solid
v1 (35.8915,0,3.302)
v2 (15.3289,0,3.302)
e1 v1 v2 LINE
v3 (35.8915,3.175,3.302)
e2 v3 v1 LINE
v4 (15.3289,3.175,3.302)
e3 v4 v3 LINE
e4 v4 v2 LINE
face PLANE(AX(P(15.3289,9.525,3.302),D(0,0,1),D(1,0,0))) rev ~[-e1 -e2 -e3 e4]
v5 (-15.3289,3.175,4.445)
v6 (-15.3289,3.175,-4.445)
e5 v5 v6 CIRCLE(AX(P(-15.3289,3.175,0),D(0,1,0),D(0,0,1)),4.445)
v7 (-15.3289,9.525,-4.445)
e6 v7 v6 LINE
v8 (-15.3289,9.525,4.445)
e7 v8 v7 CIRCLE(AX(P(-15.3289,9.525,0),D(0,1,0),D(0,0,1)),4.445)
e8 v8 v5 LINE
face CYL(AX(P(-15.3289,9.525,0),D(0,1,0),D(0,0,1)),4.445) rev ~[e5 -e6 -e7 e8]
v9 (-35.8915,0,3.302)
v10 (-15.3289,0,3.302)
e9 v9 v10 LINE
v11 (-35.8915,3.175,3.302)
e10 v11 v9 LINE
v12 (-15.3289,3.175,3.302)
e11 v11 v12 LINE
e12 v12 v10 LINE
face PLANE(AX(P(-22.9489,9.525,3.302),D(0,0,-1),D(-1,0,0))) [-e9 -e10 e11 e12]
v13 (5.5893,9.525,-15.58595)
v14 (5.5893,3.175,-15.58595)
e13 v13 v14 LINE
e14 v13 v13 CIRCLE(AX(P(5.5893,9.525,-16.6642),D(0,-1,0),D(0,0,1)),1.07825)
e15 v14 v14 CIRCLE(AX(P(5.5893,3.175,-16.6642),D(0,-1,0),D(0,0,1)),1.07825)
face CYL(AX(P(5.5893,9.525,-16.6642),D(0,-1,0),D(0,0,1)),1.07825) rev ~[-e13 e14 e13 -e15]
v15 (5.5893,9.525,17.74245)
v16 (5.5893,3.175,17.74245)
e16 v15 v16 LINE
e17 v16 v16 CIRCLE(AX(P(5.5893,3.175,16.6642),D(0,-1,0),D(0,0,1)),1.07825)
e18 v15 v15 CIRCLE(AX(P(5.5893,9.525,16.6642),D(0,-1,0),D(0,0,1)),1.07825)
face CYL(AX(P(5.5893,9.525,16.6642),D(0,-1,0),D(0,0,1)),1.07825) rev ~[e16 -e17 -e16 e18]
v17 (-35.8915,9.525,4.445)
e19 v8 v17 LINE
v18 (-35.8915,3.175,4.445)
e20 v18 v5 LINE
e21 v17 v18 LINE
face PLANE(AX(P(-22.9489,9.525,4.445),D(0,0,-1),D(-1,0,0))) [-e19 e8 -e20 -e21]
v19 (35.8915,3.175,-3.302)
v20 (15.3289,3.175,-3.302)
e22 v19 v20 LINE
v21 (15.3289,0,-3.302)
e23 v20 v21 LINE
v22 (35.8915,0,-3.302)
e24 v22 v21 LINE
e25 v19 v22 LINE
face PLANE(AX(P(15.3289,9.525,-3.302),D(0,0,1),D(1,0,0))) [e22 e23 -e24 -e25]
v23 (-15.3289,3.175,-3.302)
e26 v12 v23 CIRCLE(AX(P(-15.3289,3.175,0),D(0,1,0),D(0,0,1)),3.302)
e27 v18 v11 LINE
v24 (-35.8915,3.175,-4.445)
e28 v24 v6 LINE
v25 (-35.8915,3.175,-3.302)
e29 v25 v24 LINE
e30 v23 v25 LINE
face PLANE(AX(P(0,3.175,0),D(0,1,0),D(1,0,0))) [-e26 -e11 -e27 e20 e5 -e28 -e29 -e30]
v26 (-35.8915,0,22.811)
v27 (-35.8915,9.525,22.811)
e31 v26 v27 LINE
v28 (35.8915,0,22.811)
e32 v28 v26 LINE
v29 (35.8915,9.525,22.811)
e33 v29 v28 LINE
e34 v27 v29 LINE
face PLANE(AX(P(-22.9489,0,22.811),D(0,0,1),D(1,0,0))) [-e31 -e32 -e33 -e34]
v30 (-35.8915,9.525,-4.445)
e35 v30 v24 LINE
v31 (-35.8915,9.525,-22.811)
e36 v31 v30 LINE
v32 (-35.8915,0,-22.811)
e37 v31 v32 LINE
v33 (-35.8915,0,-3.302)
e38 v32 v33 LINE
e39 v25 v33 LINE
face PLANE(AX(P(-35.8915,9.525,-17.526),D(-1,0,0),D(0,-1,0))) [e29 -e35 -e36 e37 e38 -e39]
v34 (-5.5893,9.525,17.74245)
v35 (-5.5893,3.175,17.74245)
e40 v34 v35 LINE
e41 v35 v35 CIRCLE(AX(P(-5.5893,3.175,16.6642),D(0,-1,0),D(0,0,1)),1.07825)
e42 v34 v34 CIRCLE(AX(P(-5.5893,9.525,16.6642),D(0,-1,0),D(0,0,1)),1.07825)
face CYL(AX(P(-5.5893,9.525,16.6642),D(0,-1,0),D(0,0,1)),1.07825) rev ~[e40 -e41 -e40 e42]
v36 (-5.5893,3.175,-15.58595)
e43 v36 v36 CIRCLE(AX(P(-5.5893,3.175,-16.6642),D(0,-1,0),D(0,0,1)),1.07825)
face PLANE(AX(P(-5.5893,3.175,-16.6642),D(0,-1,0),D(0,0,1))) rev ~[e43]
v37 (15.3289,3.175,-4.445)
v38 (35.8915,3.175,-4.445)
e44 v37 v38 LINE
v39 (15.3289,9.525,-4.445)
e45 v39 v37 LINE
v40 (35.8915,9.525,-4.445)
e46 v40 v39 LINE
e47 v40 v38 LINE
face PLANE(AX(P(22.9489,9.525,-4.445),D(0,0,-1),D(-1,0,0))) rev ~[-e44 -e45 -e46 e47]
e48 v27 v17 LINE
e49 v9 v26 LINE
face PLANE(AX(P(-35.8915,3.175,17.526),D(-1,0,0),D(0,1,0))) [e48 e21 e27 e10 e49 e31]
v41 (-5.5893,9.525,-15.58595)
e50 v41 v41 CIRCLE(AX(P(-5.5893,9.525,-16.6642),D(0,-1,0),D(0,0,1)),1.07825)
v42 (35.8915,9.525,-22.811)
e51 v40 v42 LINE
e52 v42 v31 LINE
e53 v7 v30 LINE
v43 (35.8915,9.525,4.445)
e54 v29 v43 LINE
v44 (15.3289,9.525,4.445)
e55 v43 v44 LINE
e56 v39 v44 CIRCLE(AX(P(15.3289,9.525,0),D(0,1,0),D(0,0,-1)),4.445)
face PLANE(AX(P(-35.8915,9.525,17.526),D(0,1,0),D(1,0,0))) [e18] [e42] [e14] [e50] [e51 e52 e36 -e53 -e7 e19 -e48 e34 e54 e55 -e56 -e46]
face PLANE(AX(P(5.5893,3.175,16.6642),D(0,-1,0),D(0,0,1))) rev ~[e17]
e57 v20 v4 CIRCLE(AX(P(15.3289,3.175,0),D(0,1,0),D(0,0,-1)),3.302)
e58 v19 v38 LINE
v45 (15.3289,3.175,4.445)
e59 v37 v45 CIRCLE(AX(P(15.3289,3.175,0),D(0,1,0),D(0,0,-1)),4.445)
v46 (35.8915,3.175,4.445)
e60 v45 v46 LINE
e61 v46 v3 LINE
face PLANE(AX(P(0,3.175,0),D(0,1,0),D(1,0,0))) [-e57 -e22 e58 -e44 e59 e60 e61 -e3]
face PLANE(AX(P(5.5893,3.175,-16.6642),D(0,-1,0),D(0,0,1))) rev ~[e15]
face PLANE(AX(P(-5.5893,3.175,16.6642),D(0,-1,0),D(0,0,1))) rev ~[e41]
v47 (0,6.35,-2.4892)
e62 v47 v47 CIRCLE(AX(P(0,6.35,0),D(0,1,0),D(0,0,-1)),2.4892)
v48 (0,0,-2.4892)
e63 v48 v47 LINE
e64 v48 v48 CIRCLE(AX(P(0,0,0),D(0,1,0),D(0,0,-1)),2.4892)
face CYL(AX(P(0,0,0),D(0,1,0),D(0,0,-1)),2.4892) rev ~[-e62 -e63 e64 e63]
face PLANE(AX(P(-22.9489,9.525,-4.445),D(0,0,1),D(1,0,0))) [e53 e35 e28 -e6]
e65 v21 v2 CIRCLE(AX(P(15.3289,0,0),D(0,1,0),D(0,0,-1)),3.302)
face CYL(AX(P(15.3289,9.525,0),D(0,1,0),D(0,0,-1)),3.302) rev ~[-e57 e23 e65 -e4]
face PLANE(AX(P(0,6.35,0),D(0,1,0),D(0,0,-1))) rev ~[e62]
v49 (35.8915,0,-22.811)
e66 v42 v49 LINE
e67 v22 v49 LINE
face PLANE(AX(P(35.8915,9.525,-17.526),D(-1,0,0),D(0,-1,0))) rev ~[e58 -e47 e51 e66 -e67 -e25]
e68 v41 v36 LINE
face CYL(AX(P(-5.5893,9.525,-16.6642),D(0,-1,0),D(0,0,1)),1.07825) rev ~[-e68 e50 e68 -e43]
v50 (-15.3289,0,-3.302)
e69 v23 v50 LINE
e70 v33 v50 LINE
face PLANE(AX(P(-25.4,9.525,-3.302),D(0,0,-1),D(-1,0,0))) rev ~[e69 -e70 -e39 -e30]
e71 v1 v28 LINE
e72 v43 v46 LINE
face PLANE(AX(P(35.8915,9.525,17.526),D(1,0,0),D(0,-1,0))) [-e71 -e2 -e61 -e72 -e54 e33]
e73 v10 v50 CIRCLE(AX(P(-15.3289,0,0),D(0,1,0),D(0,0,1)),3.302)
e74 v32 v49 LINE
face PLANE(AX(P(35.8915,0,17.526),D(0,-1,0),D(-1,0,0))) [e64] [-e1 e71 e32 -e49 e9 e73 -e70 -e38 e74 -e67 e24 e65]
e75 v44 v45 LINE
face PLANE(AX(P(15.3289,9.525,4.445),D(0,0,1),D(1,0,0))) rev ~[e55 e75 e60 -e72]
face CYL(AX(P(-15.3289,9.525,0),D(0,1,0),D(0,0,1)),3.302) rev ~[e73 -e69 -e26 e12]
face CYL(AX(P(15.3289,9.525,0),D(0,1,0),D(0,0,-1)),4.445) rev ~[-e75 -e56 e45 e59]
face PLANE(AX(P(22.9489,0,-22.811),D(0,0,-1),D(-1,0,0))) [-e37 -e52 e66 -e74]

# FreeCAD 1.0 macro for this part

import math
import FreeCAD as App
import Part
import Sketcher
Q = App.Units.Quantity

doc = App.newDocument("Part")
body = doc.addObject("PartDesign::Body", "Body")

sketch1 = body.newObject("Sketcher::SketchObject", "Sketch")
sketch1.AttachmentSupport = (doc.getObject("XZ_Plane"), [""])
sketch1.MapMode = "FlatFace"
sketch1.addGeometry([
    Part.LineSegment(App.Vector(-22.9489, -20.701, 0), App.Vector(-22.9489, 20.701, 0)),
    Part.LineSegment(App.Vector(-22.9489, 20.701, 0), App.Vector(22.9489, 20.701, 0)),
    Part.LineSegment(App.Vector(22.9489, 20.701, 0), App.Vector(22.9489, -20.701, 0)),
    Part.LineSegment(App.Vector(22.9489, -20.701, 0), App.Vector(-22.9489, -20.701, 0)),
], False)
sketch1.addConstraint([
    Sketcher.Constraint("Coincident", 0, 2, 1, 1),
    Sketcher.Constraint("Coincident", 1, 2, 2, 1),
    Sketcher.Constraint("Coincident", 2, 2, 3, 1),
    Sketcher.Constraint("Coincident", 3, 2, 0, 1),
    Sketcher.Constraint("Vertical", 0),
    Sketcher.Constraint("Horizontal", 1),
    Sketcher.Constraint("Vertical", 2),
    Sketcher.Constraint("Horizontal", 3),
    Sketcher.Constraint("Symmetric", 0, 2, 2, 2, -1, 1),
    Sketcher.Constraint("DistanceY", 0, 1, 0, 2, Q("1.63 in")),
    Sketcher.Constraint("DistanceX", 1, 1, 1, 2, Q("1.807 in")),
])
pad1 = body.newObject("PartDesign::Pad", "Pad")
pad1.Profile = sketch1
pad1.Length = Q("0.375 in")
pad1.Reversed = True

sketch2 = body.newObject("Sketcher::SketchObject", "Sketch001")
sketch2.AttachmentSupport = (doc.getObject("XZ_Plane"), [""])
sketch2.MapMode = "FlatFace"
sketch2.addGeometry(Part.Circle(App.Vector(0, 0, 0), App.Vector(0, 0, 1), 2.4892), False)
sketch2.addConstraint([
    Sketcher.Constraint("Coincident", 0, 3, -1, 1),
    Sketcher.Constraint("Diameter", 0, Q("0.196 in")),
])
doc.recompute()
hole = body.newObject("PartDesign::Hole", "Hole")
hole.Profile = sketch2
hole.ThreadType = "None"
hole.Diameter = Q("0.196 in")
hole.DepthType = "Dimension"
hole.Depth = Q("0.25 in")
hole.DrillPoint = "Flat"

sketch3 = body.newObject("Sketcher::SketchObject", "Sketch002")
sketch3.AttachmentSupport = (doc.getObject("XY_Plane"), [""])
sketch3.MapMode = "FlatFace"
sketch3.AttachmentOffset = App.Placement(App.Vector(0, 0, 0.815 * 25.4), App.Rotation())
sketch3.addGeometry([
    Part.LineSegment(App.Vector(22.9489, 0, 0), App.Vector(22.9489, 9.525, 0)),
    Part.LineSegment(App.Vector(22.9489, 9.525, 0), App.Vector(-22.9489, 9.525, 0)),
    Part.LineSegment(App.Vector(-22.9489, 9.525, 0), App.Vector(-22.9489, 0, 0)),
    Part.LineSegment(App.Vector(-22.9489, 0, 0), App.Vector(22.9489, 0, 0)),
], False)
sketch3.addConstraint([
    Sketcher.Constraint("Coincident", 0, 2, 1, 1),
    Sketcher.Constraint("Coincident", 1, 2, 2, 1),
    Sketcher.Constraint("Coincident", 2, 2, 3, 1),
    Sketcher.Constraint("Coincident", 3, 2, 0, 1),
    Sketcher.Constraint("Vertical", 0),
    Sketcher.Constraint("Horizontal", 1),
    Sketcher.Constraint("Vertical", 2),
    Sketcher.Constraint("Horizontal", 3),
    Sketcher.Constraint("Symmetric", 2, 2, 3, 2, -1, 1),
    Sketcher.Constraint("DistanceX", 1, 2, 1, 1, Q("1.807 in")),
    Sketcher.Constraint("DistanceY", 0, 1, 0, 2, Q("0.375 in")),
])
pocket1 = body.newObject("PartDesign::Pocket", "Pocket")
pocket1.Profile = sketch3
pocket1.Length = Q("0.125 in")

sketch4 = body.newObject("Sketcher::SketchObject", "Sketch003")
sketch4.AttachmentSupport = (doc.getObject("XY_Plane"), [""])
sketch4.MapMode = "FlatFace"
sketch4.AttachmentOffset = App.Placement(App.Vector(0, 0, -0.815 * 25.4), App.Rotation())
sketch4.addGeometry([
    Part.LineSegment(App.Vector(-22.9489, 9.525, 0), App.Vector(22.9489, 9.525, 0)),
    Part.LineSegment(App.Vector(22.9489, 9.525, 0), App.Vector(22.9489, 0, 0)),
    Part.LineSegment(App.Vector(22.9489, 0, 0), App.Vector(-22.9489, 0, 0)),
    Part.LineSegment(App.Vector(-22.9489, 0, 0), App.Vector(-22.9489, 9.525, 0)),
], False)
sketch4.addConstraint([
    Sketcher.Constraint("Coincident", 0, 2, 1, 1),
    Sketcher.Constraint("Coincident", 1, 2, 2, 1),
    Sketcher.Constraint("Coincident", 2, 2, 3, 1),
    Sketcher.Constraint("Coincident", 3, 2, 0, 1),
    Sketcher.Constraint("Horizontal", 0),
    Sketcher.Constraint("Vertical", 1),
    Sketcher.Constraint("Horizontal", 2),
    Sketcher.Constraint("Vertical", 3),
    Sketcher.Constraint("Symmetric", 1, 2, 2, 2, -1, 1),
    Sketcher.Constraint("DistanceX", 0, 1, 0, 2, Q("1.807 in")),
    Sketcher.Constraint("DistanceY", 1, 2, 1, 1, Q("0.375 in")),
])
pocket2 = body.newObject("PartDesign::Pocket", "Pocket001")
pocket2.Profile = sketch4
pocket2.Length = Q("0.125 in")
pocket2.Reversed = True

sketch5 = body.newObject("Sketcher::SketchObject", "Sketch004")
sketch5.AttachmentSupport = (doc.getObject("YZ_Plane"), [""])
sketch5.MapMode = "FlatFace"
sketch5.AttachmentOffset = App.Placement(App.Vector(0, 0, 0.9035 * 25.4), App.Rotation())
sketch5.addGeometry([
    Part.LineSegment(App.Vector(9.525, -17.526, 0), App.Vector(9.525, 17.526, 0)),
    Part.LineSegment(App.Vector(9.525, 17.526, 0), App.Vector(0, 17.526, 0)),
    Part.LineSegment(App.Vector(0, 17.526, 0), App.Vector(0, -17.526, 0)),
    Part.LineSegment(App.Vector(0, -17.526, 0), App.Vector(9.525, -17.526, 0)),
], False)
sketch5.addConstraint([
    Sketcher.Constraint("Coincident", 0, 2, 1, 1),
    Sketcher.Constraint("Coincident", 1, 2, 2, 1),
    Sketcher.Constraint("Coincident", 2, 2, 3, 1),
    Sketcher.Constraint("Coincident", 3, 2, 0, 1),
    Sketcher.Constraint("Vertical", 0),
    Sketcher.Constraint("Horizontal", 1),
    Sketcher.Constraint("Vertical", 2),
    Sketcher.Constraint("Horizontal", 3),
    Sketcher.Constraint("Symmetric", 1, 2, 2, 2, -1, 1),
    Sketcher.Constraint("DistanceY", 0, 1, 0, 2, Q("1.38 in")),
    Sketcher.Constraint("DistanceX", 1, 2, 1, 1, Q("0.375 in")),
])
pad2 = body.newObject("PartDesign::Pad", "Pad001")
pad2.Profile = sketch5
pad2.Length = 12.9426

sketch6 = body.newObject("Sketcher::SketchObject", "Sketch005")
sketch6.AttachmentSupport = (doc.getObject("YZ_Plane"), [""])
sketch6.MapMode = "FlatFace"
sketch6.AttachmentOffset = App.Placement(App.Vector(0, 0, -0.9035 * 25.4), App.Rotation())
sketch6.addGeometry([
    Part.LineSegment(App.Vector(9.525, 17.526, 0), App.Vector(9.525, -17.526, 0)),
    Part.LineSegment(App.Vector(9.525, -17.526, 0), App.Vector(0, -17.526, 0)),
    Part.LineSegment(App.Vector(0, -17.526, 0), App.Vector(0, 17.526, 0)),
    Part.LineSegment(App.Vector(0, 17.526, 0), App.Vector(9.525, 17.526, 0)),
], False)
sketch6.addConstraint([
    Sketcher.Constraint("Coincident", 0, 2, 1, 1),
    Sketcher.Constraint("Coincident", 1, 2, 2, 1),
    Sketcher.Constraint("Coincident", 2, 2, 3, 1),
    Sketcher.Constraint("Coincident", 3, 2, 0, 1),
    Sketcher.Constraint("Vertical", 0),
    Sketcher.Constraint("Horizontal", 1),
    Sketcher.Constraint("Vertical", 2),
    Sketcher.Constraint("Horizontal", 3),
    Sketcher.Constraint("Symmetric", 1, 2, 2, 2, -1, 1),
    Sketcher.Constraint("DistanceY", 0, 2, 0, 1, Q("1.38 in")),
    Sketcher.Constraint("DistanceX", 1, 2, 1, 1, Q("0.375 in")),
])
pad3 = body.newObject("PartDesign::Pad", "Pad002")
pad3.Profile = sketch6
pad3.Length = 12.9426
pad3.Reversed = True

sketch7 = body.newObject("Sketcher::SketchObject", "Sketch006")
sketch7.AttachmentSupport = (doc.getObject("XZ_Plane"), [""])
sketch7.MapMode = "FlatFace"
sketch7.AttachmentOffset = App.Placement(App.Vector(0, 0, -0.375 * 25.4), App.Rotation())
sketch7.addGeometry([
    Part.LineSegment(App.Vector(15.3289, 3.302, 0), App.Vector(35.8915, 3.302, 0)),
    Part.LineSegment(App.Vector(35.8915, 3.302, 0), App.Vector(35.8915, -3.302, 0)),
    Part.LineSegment(App.Vector(35.8915, -3.302, 0), App.Vector(15.3289, -3.302, 0)),
    Part.ArcOfCircle(Part.Circle(App.Vector(15.3289, 0, 0), App.Vector(0, 0, 1), 3.302), math.radians(90), math.radians(270)),
    Part.LineSegment(App.Vector(-35.8915, 3.302, 0), App.Vector(-15.3289, 3.302, 0)),
    Part.ArcOfCircle(Part.Circle(App.Vector(-15.3289, 0, 0), App.Vector(0, 0, 1), 3.302), math.radians(-90), math.radians(90)),
    Part.LineSegment(App.Vector(-15.3289, -3.302, 0), App.Vector(-35.8915, -3.302, 0)),
    Part.LineSegment(App.Vector(-35.8915, -3.302, 0), App.Vector(-35.8915, 3.302, 0)),
], False)
sketch7.addConstraint([
    Sketcher.Constraint("Coincident", 0, 2, 1, 1),
    Sketcher.Constraint("Coincident", 1, 2, 2, 1),
    Sketcher.Constraint("Tangent", 2, 2, 3, 2),
    Sketcher.Constraint("Tangent", 3, 1, 0, 1),
    Sketcher.Constraint("Tangent", 4, 2, 5, 2),
    Sketcher.Constraint("Tangent", 5, 1, 6, 1),
    Sketcher.Constraint("Coincident", 6, 2, 7, 1),
    Sketcher.Constraint("Coincident", 7, 2, 4, 1),
    Sketcher.Constraint("Horizontal", 0),
    Sketcher.Constraint("Vertical", 1),
    Sketcher.Constraint("Horizontal", 2),
    Sketcher.Constraint("Horizontal", 4),
    Sketcher.Constraint("Horizontal", 6),
    Sketcher.Constraint("Vertical", 7),
    Sketcher.Constraint("Equal", 3, 5),
    Sketcher.Constraint("Symmetric", 3, 3, 5, 3, -1, 1),
    Sketcher.Constraint("Symmetric", 1, 2, 6, 2, -2),
    Sketcher.Constraint("Radius", 3, Q("0.13 in")),
    Sketcher.Constraint("DistanceX", 5, 3, 3, 3, Q("1.207 in")),
    Sketcher.Constraint("DistanceX", 0, 1, 0, 2, 20.5626),
])
pocket3 = body.newObject("PartDesign::Pocket", "Pocket002")
pocket3.Profile = sketch7
pocket3.Type = "ThroughAll"
pocket3.Reversed = True

sketch8 = body.newObject("Sketcher::SketchObject", "Sketch007")
sketch8.AttachmentSupport = (doc.getObject("XZ_Plane"), [""])
sketch8.MapMode = "FlatFace"
sketch8.AttachmentOffset = App.Placement(App.Vector(0, 0, -0.375 * 25.4), App.Rotation())
sketch8.addGeometry([
    Part.LineSegment(App.Vector(15.3289, 4.445, 0), App.Vector(35.8915, 4.445, 0)),
    Part.LineSegment(App.Vector(35.8915, 4.445, 0), App.Vector(35.8915, 3.302, 0)),
    Part.LineSegment(App.Vector(35.8915, 3.302, 0), App.Vector(15.3289, 3.302, 0)),
    Part.ArcOfCircle(Part.Circle(App.Vector(15.3289, 0, 0), App.Vector(0, 0, 1), 3.302), math.radians(90), math.radians(270)),
    Part.LineSegment(App.Vector(15.3289, -3.302, 0), App.Vector(35.8915, -3.302, 0)),
    Part.LineSegment(App.Vector(35.8915, -3.302, 0), App.Vector(35.8915, -4.445, 0)),
    Part.LineSegment(App.Vector(35.8915, -4.445, 0), App.Vector(15.3289, -4.445, 0)),
    Part.ArcOfCircle(Part.Circle(App.Vector(15.3289, 0, 0), App.Vector(0, 0, 1), 4.445), math.radians(90), math.radians(270)),
    Part.LineSegment(App.Vector(-35.8915, 4.445, 0), App.Vector(-15.3289, 4.445, 0)),
    Part.ArcOfCircle(Part.Circle(App.Vector(-15.3289, 0, 0), App.Vector(0, 0, 1), 4.445), math.radians(-90), math.radians(90)),
    Part.LineSegment(App.Vector(-15.3289, -4.445, 0), App.Vector(-35.8915, -4.445, 0)),
    Part.LineSegment(App.Vector(-35.8915, -4.445, 0), App.Vector(-35.8915, -3.302, 0)),
    Part.LineSegment(App.Vector(-35.8915, -3.302, 0), App.Vector(-15.3289, -3.302, 0)),
    Part.ArcOfCircle(Part.Circle(App.Vector(-15.3289, 0, 0), App.Vector(0, 0, 1), 3.302), math.radians(-90), math.radians(90)),
    Part.LineSegment(App.Vector(-15.3289, 3.302, 0), App.Vector(-35.8915, 3.302, 0)),
    Part.LineSegment(App.Vector(-35.8915, 3.302, 0), App.Vector(-35.8915, 4.445, 0)),
], False)
sketch8.addConstraint([
    Sketcher.Constraint("Coincident", 0, 2, 1, 1),
    Sketcher.Constraint("Coincident", 1, 2, 2, 1),
    Sketcher.Constraint("Tangent", 2, 2, 3, 1),
    Sketcher.Constraint("Tangent", 3, 2, 4, 1),
    Sketcher.Constraint("Coincident", 4, 2, 5, 1),
    Sketcher.Constraint("Coincident", 5, 2, 6, 1),
    Sketcher.Constraint("Tangent", 6, 2, 7, 2),
    Sketcher.Constraint("Tangent", 7, 1, 0, 1),
    Sketcher.Constraint("Tangent", 8, 2, 9, 2),
    Sketcher.Constraint("Tangent", 9, 1, 10, 1),
    Sketcher.Constraint("Coincident", 10, 2, 11, 1),
    Sketcher.Constraint("Coincident", 11, 2, 12, 1),
    Sketcher.Constraint("Tangent", 12, 2, 13, 1),
    Sketcher.Constraint("Tangent", 13, 2, 14, 1),
    Sketcher.Constraint("Coincident", 14, 2, 15, 1),
    Sketcher.Constraint("Coincident", 15, 2, 8, 1),
    Sketcher.Constraint("Horizontal", 0),
    Sketcher.Constraint("Vertical", 1),
    Sketcher.Constraint("Horizontal", 2),
    Sketcher.Constraint("Horizontal", 4),
    Sketcher.Constraint("Vertical", 5),
    Sketcher.Constraint("Horizontal", 6),
    Sketcher.Constraint("Horizontal", 8),
    Sketcher.Constraint("Horizontal", 10),
    Sketcher.Constraint("Vertical", 11),
    Sketcher.Constraint("Horizontal", 12),
    Sketcher.Constraint("Horizontal", 14),
    Sketcher.Constraint("Vertical", 15),
    Sketcher.Constraint("Coincident", 7, 3, 3, 3),
    Sketcher.Constraint("Coincident", 13, 3, 9, 3),
    Sketcher.Constraint("Equal", 7, 9),
    Sketcher.Constraint("Equal", 3, 13),
    Sketcher.Constraint("Symmetric", 3, 3, 9, 3, -1, 1),
    Sketcher.Constraint("Symmetric", 5, 2, 10, 2, -2),
    Sketcher.Constraint("Vertical", 1, 2, 4, 2),
    Sketcher.Constraint("Vertical", 11, 2, 14, 2),
    Sketcher.Constraint("DistanceY", 1, 2, 1, 1, Q("0.045 in")),
    Sketcher.Constraint("Radius", 3, Q("0.13 in")),
    Sketcher.Constraint("DistanceX", 9, 3, 3, 3, Q("1.207 in")),
    Sketcher.Constraint("DistanceX", 0, 1, 0, 2, 20.5626),
])
pocket4 = body.newObject("PartDesign::Pocket", "Pocket003")
pocket4.Profile = sketch8
pocket4.Length = Q("0.25 in")
pocket4.Reversed = True

sketch9 = body.newObject("Sketcher::SketchObject", "Sketch008")
sketch9.AttachmentSupport = (doc.getObject("XY_Plane"), [""])
sketch9.MapMode = "FlatFace"
sketch9.AttachmentOffset = App.Placement(App.Vector(0, 0, -0.69 * 25.4), App.Rotation())
sketch9.addGeometry([
    Part.LineSegment(App.Vector(-35.8915, 9.525, 0), App.Vector(35.8915, 9.525, 0)),
    Part.LineSegment(App.Vector(35.8915, 9.525, 0), App.Vector(35.8915, 0, 0)),
    Part.LineSegment(App.Vector(35.8915, 0, 0), App.Vector(-35.8915, 0, 0)),
    Part.LineSegment(App.Vector(-35.8915, 0, 0), App.Vector(-35.8915, 9.525, 0)),
], False)
sketch9.addConstraint([
    Sketcher.Constraint("Coincident", 0, 2, 1, 1),
    Sketcher.Constraint("Coincident", 1, 2, 2, 1),
    Sketcher.Constraint("Coincident", 2, 2, 3, 1),
    Sketcher.Constraint("Coincident", 3, 2, 0, 1),
    Sketcher.Constraint("Horizontal", 0),
    Sketcher.Constraint("Vertical", 1),
    Sketcher.Constraint("Horizontal", 2),
    Sketcher.Constraint("Vertical", 3),
    Sketcher.Constraint("Symmetric", 1, 2, 2, 2, -1, 1),
    Sketcher.Constraint("DistanceY", 1, 2, 1, 1, Q("0.375 in")),
    Sketcher.Constraint("DistanceX", 0, 1, 0, 2, Q("2.8261 in")),
])
pad4 = body.newObject("PartDesign::Pad", "Pad003")
pad4.Profile = sketch9
pad4.Length = 5.285
pad4.Reversed = True

sketch10 = body.newObject("Sketcher::SketchObject", "Sketch009")
sketch10.AttachmentSupport = (doc.getObject("XY_Plane"), [""])
sketch10.MapMode = "FlatFace"
sketch10.AttachmentOffset = App.Placement(App.Vector(0, 0, 0.69 * 25.4), App.Rotation())
sketch10.addGeometry([
    Part.LineSegment(App.Vector(-35.8915, 9.525, 0), App.Vector(-35.8915, 0, 0)),
    Part.LineSegment(App.Vector(-35.8915, 0, 0), App.Vector(35.8915, 0, 0)),
    Part.LineSegment(App.Vector(35.8915, 0, 0), App.Vector(35.8915, 9.525, 0)),
    Part.LineSegment(App.Vector(35.8915, 9.525, 0), App.Vector(-35.8915, 9.525, 0)),
], False)
sketch10.addConstraint([
    Sketcher.Constraint("Coincident", 0, 2, 1, 1),
    Sketcher.Constraint("Coincident", 1, 2, 2, 1),
    Sketcher.Constraint("Coincident", 2, 2, 3, 1),
    Sketcher.Constraint("Coincident", 3, 2, 0, 1),
    Sketcher.Constraint("Vertical", 0),
    Sketcher.Constraint("Horizontal", 1),
    Sketcher.Constraint("Vertical", 2),
    Sketcher.Constraint("Horizontal", 3),
    Sketcher.Constraint("Symmetric", 0, 2, 1, 2, -1, 1),
    Sketcher.Constraint("DistanceY", 0, 2, 0, 1, Q("0.375 in")),
    Sketcher.Constraint("DistanceX", 1, 1, 1, 2, Q("2.8261 in")),
])
pad5 = body.newObject("PartDesign::Pad", "Pad004")
pad5.Profile = sketch10
pad5.Length = 5.285

sketch11 = body.newObject("Sketcher::SketchObject", "Sketch010")
sketch11.AttachmentSupport = (doc.getObject("XZ_Plane"), [""])
sketch11.MapMode = "FlatFace"
sketch11.AttachmentOffset = App.Placement(App.Vector(0, 0, -0.375 * 25.4), App.Rotation())
sketch11.addGeometry([
    Part.Circle(App.Vector(-5.5893, 16.6642, 0), App.Vector(0, 0, 1), 1.07825),
    Part.Circle(App.Vector(5.5893, 16.6642, 0), App.Vector(0, 0, 1), 1.07825),
    Part.Circle(App.Vector(-5.5893, -16.6642, 0), App.Vector(0, 0, 1), 1.07825),
    Part.Circle(App.Vector(5.5893, -16.6642, 0), App.Vector(0, 0, 1), 1.07825),
], False)
sketch11.addConstraint([
    Sketcher.Constraint("Equal", 0, 1),
    Sketcher.Constraint("Equal", 1, 2),
    Sketcher.Constraint("Equal", 2, 3),
    Sketcher.Constraint("Symmetric", 1, 3, 2, 3, -1, 1),
    Sketcher.Constraint("Symmetric", 0, 3, 3, 3, -1, 1),
    Sketcher.Constraint("Symmetric", 0, 3, 1, 3, -2),
    Sketcher.Constraint("Diameter", 0, Q("0.0849 in")),
    Sketcher.Constraint("DistanceX", 0, 3, 1, 3, Q("0.4401 in")),
    Sketcher.Constraint("DistanceY", -1, 1, 0, 3, 16.6642),
])
doc.recompute()
hole2 = body.newObject("PartDesign::Hole", "Hole001")
hole2.Profile = sketch11
hole2.ThreadType = "None"
hole2.Diameter = Q("0.0849016 in")
hole2.DepthType = "Dimension"
hole2.Depth = Q("0.25 in")
hole2.DrillPoint = "Flat"
hole2.Reversed = True

doc.recompute()
